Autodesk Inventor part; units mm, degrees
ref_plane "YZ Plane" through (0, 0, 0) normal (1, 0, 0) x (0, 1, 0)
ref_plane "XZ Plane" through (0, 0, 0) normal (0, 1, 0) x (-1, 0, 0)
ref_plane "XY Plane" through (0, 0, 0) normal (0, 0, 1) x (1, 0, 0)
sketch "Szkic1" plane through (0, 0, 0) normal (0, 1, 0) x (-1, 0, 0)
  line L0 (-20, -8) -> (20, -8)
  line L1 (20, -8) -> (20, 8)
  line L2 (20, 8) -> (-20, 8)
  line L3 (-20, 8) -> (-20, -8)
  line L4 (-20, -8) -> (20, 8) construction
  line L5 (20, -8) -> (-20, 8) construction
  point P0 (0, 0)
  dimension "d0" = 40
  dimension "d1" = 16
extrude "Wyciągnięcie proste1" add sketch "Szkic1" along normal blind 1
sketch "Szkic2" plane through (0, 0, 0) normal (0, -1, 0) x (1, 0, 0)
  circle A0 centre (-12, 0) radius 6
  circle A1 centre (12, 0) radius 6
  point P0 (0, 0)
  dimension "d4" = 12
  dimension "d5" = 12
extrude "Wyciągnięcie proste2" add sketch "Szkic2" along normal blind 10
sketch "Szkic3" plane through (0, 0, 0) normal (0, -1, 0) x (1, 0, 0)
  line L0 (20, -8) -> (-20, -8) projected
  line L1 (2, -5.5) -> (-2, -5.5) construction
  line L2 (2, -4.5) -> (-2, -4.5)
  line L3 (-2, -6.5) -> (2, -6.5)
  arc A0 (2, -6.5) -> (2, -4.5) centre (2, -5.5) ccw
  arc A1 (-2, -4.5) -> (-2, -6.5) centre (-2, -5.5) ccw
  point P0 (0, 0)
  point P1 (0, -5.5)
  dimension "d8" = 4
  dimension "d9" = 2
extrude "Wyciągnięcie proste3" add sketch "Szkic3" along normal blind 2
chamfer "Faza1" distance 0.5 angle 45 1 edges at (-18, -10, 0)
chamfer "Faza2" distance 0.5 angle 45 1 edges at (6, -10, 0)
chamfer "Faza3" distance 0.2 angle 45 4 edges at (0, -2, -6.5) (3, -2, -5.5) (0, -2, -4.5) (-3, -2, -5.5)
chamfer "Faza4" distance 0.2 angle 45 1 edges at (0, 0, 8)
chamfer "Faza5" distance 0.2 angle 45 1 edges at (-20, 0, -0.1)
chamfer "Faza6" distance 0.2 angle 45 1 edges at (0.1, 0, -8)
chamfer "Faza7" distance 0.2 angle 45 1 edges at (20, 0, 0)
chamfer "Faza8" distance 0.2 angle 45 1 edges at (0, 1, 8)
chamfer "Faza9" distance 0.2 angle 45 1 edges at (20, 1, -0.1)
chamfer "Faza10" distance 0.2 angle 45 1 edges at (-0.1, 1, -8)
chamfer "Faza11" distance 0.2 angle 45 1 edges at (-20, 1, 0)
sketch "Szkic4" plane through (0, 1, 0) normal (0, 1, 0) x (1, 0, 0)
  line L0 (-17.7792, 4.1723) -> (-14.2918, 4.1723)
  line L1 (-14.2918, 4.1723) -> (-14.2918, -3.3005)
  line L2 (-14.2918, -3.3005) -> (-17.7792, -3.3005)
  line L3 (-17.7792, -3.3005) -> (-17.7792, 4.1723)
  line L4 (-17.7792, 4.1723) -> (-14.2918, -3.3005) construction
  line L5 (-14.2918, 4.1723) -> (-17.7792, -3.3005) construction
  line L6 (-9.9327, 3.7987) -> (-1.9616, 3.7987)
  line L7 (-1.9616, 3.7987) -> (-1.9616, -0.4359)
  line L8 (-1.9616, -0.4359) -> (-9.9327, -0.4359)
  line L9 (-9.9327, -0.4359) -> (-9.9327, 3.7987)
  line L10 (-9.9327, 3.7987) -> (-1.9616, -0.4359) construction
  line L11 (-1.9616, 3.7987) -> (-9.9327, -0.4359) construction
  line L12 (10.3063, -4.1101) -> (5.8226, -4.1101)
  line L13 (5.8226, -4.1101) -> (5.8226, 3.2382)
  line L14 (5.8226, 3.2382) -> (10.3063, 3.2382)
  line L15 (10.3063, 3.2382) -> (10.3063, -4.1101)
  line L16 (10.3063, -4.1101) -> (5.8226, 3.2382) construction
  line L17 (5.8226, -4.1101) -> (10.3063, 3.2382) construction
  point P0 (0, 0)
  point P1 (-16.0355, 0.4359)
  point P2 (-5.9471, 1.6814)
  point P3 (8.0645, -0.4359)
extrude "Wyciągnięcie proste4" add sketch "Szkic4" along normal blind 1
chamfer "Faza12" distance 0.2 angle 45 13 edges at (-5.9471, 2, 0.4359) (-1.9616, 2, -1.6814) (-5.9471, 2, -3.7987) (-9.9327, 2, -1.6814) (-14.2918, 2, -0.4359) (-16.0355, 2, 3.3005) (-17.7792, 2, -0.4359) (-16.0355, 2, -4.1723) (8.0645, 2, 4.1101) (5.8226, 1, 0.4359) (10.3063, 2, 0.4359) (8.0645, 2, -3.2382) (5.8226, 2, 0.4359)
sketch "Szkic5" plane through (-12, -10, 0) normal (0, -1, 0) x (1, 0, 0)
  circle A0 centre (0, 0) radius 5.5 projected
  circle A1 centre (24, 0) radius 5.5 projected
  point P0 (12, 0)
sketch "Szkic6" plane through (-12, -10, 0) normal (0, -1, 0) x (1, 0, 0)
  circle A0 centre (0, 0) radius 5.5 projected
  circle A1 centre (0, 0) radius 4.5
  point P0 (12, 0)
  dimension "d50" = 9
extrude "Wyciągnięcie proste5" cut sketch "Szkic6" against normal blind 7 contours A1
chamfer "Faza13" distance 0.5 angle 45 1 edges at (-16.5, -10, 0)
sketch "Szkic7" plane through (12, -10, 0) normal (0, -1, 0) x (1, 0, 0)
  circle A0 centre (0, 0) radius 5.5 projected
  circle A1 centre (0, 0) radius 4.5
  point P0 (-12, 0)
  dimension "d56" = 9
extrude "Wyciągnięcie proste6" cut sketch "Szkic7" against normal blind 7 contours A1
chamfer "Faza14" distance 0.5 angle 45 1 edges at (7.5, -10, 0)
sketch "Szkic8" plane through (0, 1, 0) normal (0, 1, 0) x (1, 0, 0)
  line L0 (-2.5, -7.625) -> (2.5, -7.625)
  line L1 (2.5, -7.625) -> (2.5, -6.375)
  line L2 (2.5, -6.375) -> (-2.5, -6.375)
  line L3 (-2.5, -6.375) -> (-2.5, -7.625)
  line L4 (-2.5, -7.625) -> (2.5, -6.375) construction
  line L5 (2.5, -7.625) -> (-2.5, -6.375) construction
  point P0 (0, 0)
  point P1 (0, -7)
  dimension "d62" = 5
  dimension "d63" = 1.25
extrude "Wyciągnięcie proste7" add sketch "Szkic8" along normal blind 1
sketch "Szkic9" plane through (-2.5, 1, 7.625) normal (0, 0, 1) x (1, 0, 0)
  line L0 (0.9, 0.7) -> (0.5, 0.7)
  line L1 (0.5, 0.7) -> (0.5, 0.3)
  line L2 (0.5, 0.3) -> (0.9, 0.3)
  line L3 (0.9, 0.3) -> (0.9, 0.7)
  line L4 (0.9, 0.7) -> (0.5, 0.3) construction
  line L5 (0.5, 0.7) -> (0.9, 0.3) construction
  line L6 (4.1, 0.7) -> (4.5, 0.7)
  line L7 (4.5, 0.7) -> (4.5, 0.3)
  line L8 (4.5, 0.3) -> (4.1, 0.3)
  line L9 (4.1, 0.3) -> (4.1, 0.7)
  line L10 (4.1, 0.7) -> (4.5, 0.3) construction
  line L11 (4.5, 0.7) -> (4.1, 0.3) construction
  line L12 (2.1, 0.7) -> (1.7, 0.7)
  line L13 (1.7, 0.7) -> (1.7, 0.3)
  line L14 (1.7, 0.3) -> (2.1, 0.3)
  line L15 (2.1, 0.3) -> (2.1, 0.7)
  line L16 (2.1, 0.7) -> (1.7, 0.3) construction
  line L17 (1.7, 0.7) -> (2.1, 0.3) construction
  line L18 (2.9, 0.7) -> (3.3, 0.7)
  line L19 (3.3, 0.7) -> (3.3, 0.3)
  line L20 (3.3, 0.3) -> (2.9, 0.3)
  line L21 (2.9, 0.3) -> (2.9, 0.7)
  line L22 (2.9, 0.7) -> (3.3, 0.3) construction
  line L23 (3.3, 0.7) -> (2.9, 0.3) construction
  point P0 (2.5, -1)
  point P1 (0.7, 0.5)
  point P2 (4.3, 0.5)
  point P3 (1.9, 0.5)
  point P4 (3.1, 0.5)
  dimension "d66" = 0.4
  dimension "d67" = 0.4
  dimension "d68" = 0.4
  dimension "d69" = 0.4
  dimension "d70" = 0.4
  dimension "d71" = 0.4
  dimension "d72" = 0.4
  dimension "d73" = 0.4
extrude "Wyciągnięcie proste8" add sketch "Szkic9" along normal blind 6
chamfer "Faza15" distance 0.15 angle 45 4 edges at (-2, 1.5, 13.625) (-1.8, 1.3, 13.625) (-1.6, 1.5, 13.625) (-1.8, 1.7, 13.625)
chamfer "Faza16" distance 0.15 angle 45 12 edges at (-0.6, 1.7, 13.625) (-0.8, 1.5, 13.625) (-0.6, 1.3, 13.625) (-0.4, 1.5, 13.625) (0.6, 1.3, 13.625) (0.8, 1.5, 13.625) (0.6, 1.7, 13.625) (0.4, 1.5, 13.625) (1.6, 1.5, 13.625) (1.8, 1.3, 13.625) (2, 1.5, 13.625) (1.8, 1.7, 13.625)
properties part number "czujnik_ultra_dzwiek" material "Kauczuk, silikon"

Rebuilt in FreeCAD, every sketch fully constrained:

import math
import FreeCAD as App
import Part
import Sketcher
Q = App.Units.Quantity


def edges_at(feature, points):
    """Names of the edges that pass closest to the given points."""
    edges = feature.Shape.Edges
    near = lambda p: min(range(len(edges)), key=lambda i: edges[i].distToShape(Part.Vertex(*p))[0])
    return sorted({f"Edge{near(p) + 1}" for p in points})


def add_polygon(sketch, points):
    """Adds a closed chain of lines whose ends are joined by coincident constraints."""
    first, n = sketch.GeometryCount, len(points)
    for a, b in zip(points, points[1:] + points[:1]):
        sketch.addGeometry(Part.LineSegment(App.Vector(*a, 0), App.Vector(*b, 0)), False)
    for i in range(n):
        sketch.addConstraint(Sketcher.Constraint("Coincident", first + i, 2, first + (i + 1) % n, 1))

doc = App.newDocument("Part")
body = doc.addObject("PartDesign::Body", "Body")

# Sketch on XZ plane
sketch1 = body.newObject("Sketcher::SketchObject", "Sketch")
sketch1.AttachmentSupport = (doc.getObject("XZ_Plane"), [""])
sketch1.MapMode = "FlatFace"
add_polygon(sketch1, [(20, 8), (20, -8), (-20, -8), (-20, 8)])  # lines 0-3
sketch1.addConstraint(Sketcher.Constraint("Vertical", 0))
sketch1.addConstraint(Sketcher.Constraint("Horizontal", 1))
sketch1.addConstraint(Sketcher.Constraint("Vertical", 2))
sketch1.addConstraint(Sketcher.Constraint("Horizontal", 3))
sketch1.addConstraint(Sketcher.Constraint("Symmetric", 0, 2, 2, 2, -1, 1))
sketch1.addConstraint(Sketcher.Constraint("DistanceX", 1, 2, 1, 1, Q("40 mm")))
sketch1.addConstraint(Sketcher.Constraint("DistanceY", 0, 2, 0, 1, Q("16 mm")))
pad1 = body.newObject("PartDesign::Pad", "Pad")
pad1.Profile = sketch1
pad1.Length = 1
pad1.Reversed = True

# Sketch on XZ plane
sketch2 = body.newObject("Sketcher::SketchObject", "Sketch001")
sketch2.AttachmentSupport = (doc.getObject("XZ_Plane"), [""])
sketch2.MapMode = "FlatFace"
sketch2.addGeometry(Part.Circle(App.Vector(-12, 0, 0), App.Vector(0, 0, 1), 6), False)
sketch2.addGeometry(Part.Circle(App.Vector(12, 0, 0), App.Vector(0, 0, 1), 6), False)
sketch2.addConstraint(Sketcher.Constraint("Equal", 0, 1))
sketch2.addConstraint(Sketcher.Constraint("Symmetric", 0, 3, 1, 3, -1, 1))
sketch2.addConstraint(Sketcher.Constraint("PointOnObject", 0, 3, -1))
sketch2.addConstraint(Sketcher.Constraint("Diameter", 0, Q("12 mm")))
sketch2.addConstraint(Sketcher.Constraint("DistanceX", 0, 3, -1, 1, Q("12 mm")))
pad2 = body.newObject("PartDesign::Pad", "Pad001")
pad2.Profile = sketch2
pad2.Length = 10

# Sketch on XZ plane
sketch3 = body.newObject("Sketcher::SketchObject", "Sketch002")
sketch3.AttachmentSupport = (doc.getObject("XZ_Plane"), [""])
sketch3.MapMode = "FlatFace"
sketch3.addGeometry(Part.ArcOfCircle(Part.Circle(App.Vector(2, -5.5, 0), App.Vector(0, 0, 1), 1), math.radians(-90), math.radians(90)), False)
sketch3.addGeometry(Part.LineSegment(App.Vector(2, -4.5, 0), App.Vector(-2, -4.5, 0)), False)
sketch3.addGeometry(Part.ArcOfCircle(Part.Circle(App.Vector(-2, -5.5, 0), App.Vector(0, 0, 1), 1), math.radians(90), math.radians(270)), False)
sketch3.addGeometry(Part.LineSegment(App.Vector(-2, -6.5, 0), App.Vector(2, -6.5, 0)), False)
sketch3.addConstraint(Sketcher.Constraint("Tangent", 0, 2, 1, 1))
sketch3.addConstraint(Sketcher.Constraint("Tangent", 1, 2, 2, 1))
sketch3.addConstraint(Sketcher.Constraint("Tangent", 2, 2, 3, 1))
sketch3.addConstraint(Sketcher.Constraint("Tangent", 3, 2, 0, 1))
sketch3.addConstraint(Sketcher.Constraint("Horizontal", 1))
sketch3.addConstraint(Sketcher.Constraint("Horizontal", 3))
sketch3.addConstraint(Sketcher.Constraint("Radius", 0, Q("1 mm")))
sketch3.addConstraint(Sketcher.Constraint("DistanceX", 1, 2, 1, 1, Q("4 mm")))
sketch3.addConstraint(Sketcher.Constraint("DistanceX", -1, 1, 0, 3, Q("2 mm")))
sketch3.addConstraint(Sketcher.Constraint("DistanceY", 0, 3, -1, 1, Q("5.5 mm")))
pad3 = body.newObject("PartDesign::Pad", "Pad002")
pad3.Profile = sketch3
pad3.Length = 2
doc.recompute()

chamfer = body.newObject("PartDesign::Chamfer", "Chamfer")
chamfer.Base = (pad3, edges_at(pad3, [(-18, -10, 0)]))
chamfer.Size = 0.5
doc.recompute()

chamfer2 = body.newObject("PartDesign::Chamfer", "Chamfer001")
chamfer2.Base = (chamfer, edges_at(chamfer, [(6, -10, 0)]))
chamfer2.Size = 0.5
doc.recompute()

chamfer3 = body.newObject("PartDesign::Chamfer", "Chamfer002")
chamfer3.Base = (chamfer2, edges_at(chamfer2, [
    (0, -2, -6.5),
    (3, -2, -5.5),
    (0, -2, -4.5),
    (-3, -2, -5.5),
]))
chamfer3.Size = 0.2
doc.recompute()

chamfer4 = body.newObject("PartDesign::Chamfer", "Chamfer003")
chamfer4.Base = (chamfer3, edges_at(chamfer3, [(0, 0, 8)]))
chamfer4.Size = 0.2
doc.recompute()

chamfer5 = body.newObject("PartDesign::Chamfer", "Chamfer004")
chamfer5.Base = (chamfer4, edges_at(chamfer4, [(-20, 0, -0.1)]))
chamfer5.Size = 0.2
doc.recompute()

chamfer6 = body.newObject("PartDesign::Chamfer", "Chamfer005")
chamfer6.Base = (chamfer5, edges_at(chamfer5, [(0.1, 0, -8)]))
chamfer6.Size = 0.2
doc.recompute()

chamfer7 = body.newObject("PartDesign::Chamfer", "Chamfer006")
chamfer7.Base = (chamfer6, edges_at(chamfer6, [(20, 0, 0)]))
chamfer7.Size = 0.2
doc.recompute()

chamfer8 = body.newObject("PartDesign::Chamfer", "Chamfer007")
chamfer8.Base = (chamfer7, edges_at(chamfer7, [(0, 1, 8)]))
chamfer8.Size = 0.2
doc.recompute()

chamfer9 = body.newObject("PartDesign::Chamfer", "Chamfer008")
chamfer9.Base = (chamfer8, edges_at(chamfer8, [(20, 1, -0.1)]))
chamfer9.Size = 0.2
doc.recompute()

chamfer10 = body.newObject("PartDesign::Chamfer", "Chamfer009")
chamfer10.Base = (chamfer9, edges_at(chamfer9, [(-0.1, 1, -8)]))
chamfer10.Size = 0.2
doc.recompute()

chamfer11 = body.newObject("PartDesign::Chamfer", "Chamfer010")
chamfer11.Base = (chamfer10, edges_at(chamfer10, [(-20, 1, 0)]))
chamfer11.Size = 0.2

# Sketch on XZ plane
sketch4 = body.newObject("Sketcher::SketchObject", "Sketch003")
sketch4.AttachmentSupport = (doc.getObject("XZ_Plane"), [""])
sketch4.MapMode = "FlatFace"
sketch4.AttachmentOffset = App.Placement(App.Vector(0, 0, -1), App.Rotation())
add_polygon(sketch4, [(-14.2918, -4.1723), (-17.7792, -4.1723), (-17.7792, 3.3005), (-14.2918, 3.3005)])  # lines 0-3
add_polygon(sketch4, [(-1.9616, -3.7987), (-9.9327, -3.7987), (-9.9327, 0.4359), (-1.9616, 0.4359)])  # lines 4-7
add_polygon(sketch4, [(5.8226, 4.1101), (10.3063, 4.1101), (10.3063, -3.2382), (5.8226, -3.2382)])  # lines 8-11
sketch4.addConstraint(Sketcher.Constraint("Horizontal", 0))
sketch4.addConstraint(Sketcher.Constraint("Vertical", 1))
sketch4.addConstraint(Sketcher.Constraint("Horizontal", 2))
sketch4.addConstraint(Sketcher.Constraint("Vertical", 3))
sketch4.addConstraint(Sketcher.Constraint("Horizontal", 4))
sketch4.addConstraint(Sketcher.Constraint("Vertical", 5))
sketch4.addConstraint(Sketcher.Constraint("Horizontal", 6))
sketch4.addConstraint(Sketcher.Constraint("Vertical", 7))
sketch4.addConstraint(Sketcher.Constraint("Horizontal", 8))
sketch4.addConstraint(Sketcher.Constraint("Vertical", 9))
sketch4.addConstraint(Sketcher.Constraint("Horizontal", 10))
sketch4.addConstraint(Sketcher.Constraint("Vertical", 11))
sketch4.addConstraint(Sketcher.Constraint("DistanceX", 4, 2, 4, 1, Q("7.971 mm")))
sketch4.addConstraint(Sketcher.Constraint("DistanceY", -1, 1, 8, 2, Q("4.11 mm")))
sketch4.addConstraint(Sketcher.Constraint("DistanceX", 0, 2, 0, 1, Q("3.4874 mm")))
sketch4.addConstraint(Sketcher.Constraint("DistanceX", 8, 1, 8, 2, Q("4.4837 mm")))
sketch4.addConstraint(Sketcher.Constraint("DistanceY", 1, 1, 1, 2, Q("7.4728 mm")))
sketch4.addConstraint(Sketcher.Constraint("DistanceY", 5, 1, 5, 2, Q("4.2346 mm")))
sketch4.addConstraint(Sketcher.Constraint("DistanceY", 9, 2, 9, 1, Q("7.3483 mm")))
sketch4.addConstraint(Sketcher.Constraint("DistanceY", -1, 1, 5, 2, Q("0.436 mm")))
sketch4.addConstraint(Sketcher.Constraint("DistanceX", 3, 2, 4, 2, Q("4.359 mm")))
sketch4.addConstraint(Sketcher.Constraint("DistanceX", 6, 2, 8, 2, Q("12.268 mm")))
sketch4.addConstraint(Sketcher.Constraint("DistanceX", 0, 2, -1, 1, Q("17.7792 mm")))
sketch4.addConstraint(Sketcher.Constraint("DistanceY", 0, 2, -1, 1, Q("4.1723 mm")))
pad4 = body.newObject("PartDesign::Pad", "Pad003")
pad4.Profile = sketch4
pad4.Length = 1
pad4.Reversed = True
doc.recompute()

chamfer12 = body.newObject("PartDesign::Chamfer", "Chamfer011")
chamfer12.Base = (pad4, edges_at(pad4, [
    (-5.947, 2, 0.436),
    (-1.962, 2, -1.681),
    (-5.947, 2, -3.799),
    (-9.933, 2, -1.681),
    (-14.292, 2, -0.436),
    (-16.035, 2, 3.3),
    (-17.779, 2, -0.436),
    (-16.035, 2, -4.172),
    (8.065, 2, 4.11),
    (5.823, 1, 0.436),
    (10.306, 2, 0.436),
    (8.065, 2, -3.238),
    (5.823, 2, 0.436),
]))
chamfer12.Size = 0.2

# Sketch on XZ plane
sketch5 = body.newObject("Sketcher::SketchObject", "Sketch004")
sketch5.AttachmentSupport = (doc.getObject("XZ_Plane"), [""])
sketch5.MapMode = "FlatFace"
sketch5.AttachmentOffset = App.Placement(App.Vector(0, 0, 10), App.Rotation())
sketch5.addGeometry(Part.Circle(App.Vector(-12, 0, 0), App.Vector(0, 0, 1), 4.5), False)
sketch5.addConstraint(Sketcher.Constraint("PointOnObject", 0, 3, -1))
sketch5.addConstraint(Sketcher.Constraint("Diameter", 0, Q("9 mm")))
sketch5.addConstraint(Sketcher.Constraint("DistanceX", 0, 3, -1, 1, Q("12 mm")))
pocket1 = body.newObject("PartDesign::Pocket", "Pocket")
pocket1.Profile = sketch5
pocket1.Length = 7
doc.recompute()

chamfer13 = body.newObject("PartDesign::Chamfer", "Chamfer012")
chamfer13.Base = (pocket1, edges_at(pocket1, [(-16.5, -10, 0)]))
chamfer13.Size = 0.5

# Sketch on XZ plane
sketch6 = body.newObject("Sketcher::SketchObject", "Sketch005")
sketch6.AttachmentSupport = (doc.getObject("XZ_Plane"), [""])
sketch6.MapMode = "FlatFace"
sketch6.AttachmentOffset = App.Placement(App.Vector(0, 0, 10), App.Rotation())
sketch6.addGeometry(Part.Circle(App.Vector(12, 0, 0), App.Vector(0, 0, 1), 4.5), False)
sketch6.addConstraint(Sketcher.Constraint("PointOnObject", 0, 3, -1))
sketch6.addConstraint(Sketcher.Constraint("Diameter", 0, Q("9 mm")))
sketch6.addConstraint(Sketcher.Constraint("DistanceX", -1, 1, 0, 3, Q("12 mm")))
pocket2 = body.newObject("PartDesign::Pocket", "Pocket001")
pocket2.Profile = sketch6
pocket2.Length = 7
doc.recompute()

chamfer14 = body.newObject("PartDesign::Chamfer", "Chamfer013")
chamfer14.Base = (pocket2, edges_at(pocket2, [(7.5, -10, 0)]))
chamfer14.Size = 0.5

# Sketch on XZ plane
sketch7 = body.newObject("Sketcher::SketchObject", "Sketch006")
sketch7.AttachmentSupport = (doc.getObject("XZ_Plane"), [""])
sketch7.MapMode = "FlatFace"
sketch7.AttachmentOffset = App.Placement(App.Vector(0, 0, -1), App.Rotation())
add_polygon(sketch7, [(-2.5, 6.375), (-2.5, 7.625), (2.5, 7.625), (2.5, 6.375)])  # lines 0-3
sketch7.addConstraint(Sketcher.Constraint("Vertical", 0))
sketch7.addConstraint(Sketcher.Constraint("Horizontal", 1))
sketch7.addConstraint(Sketcher.Constraint("Vertical", 2))
sketch7.addConstraint(Sketcher.Constraint("Horizontal", 3))
sketch7.addConstraint(Sketcher.Constraint("DistanceX", 1, 1, 1, 2, Q("5 mm")))
sketch7.addConstraint(Sketcher.Constraint("DistanceY", 0, 1, 0, 2, Q("1.25 mm")))
sketch7.addConstraint(Sketcher.Constraint("DistanceX", 0, 2, -1, 1, Q("2.5 mm")))
sketch7.addConstraint(Sketcher.Constraint("DistanceY", -1, 1, 0, 2, Q("7.625 mm")))
pad5 = body.newObject("PartDesign::Pad", "Pad004")
pad5.Profile = sketch7
pad5.Length = 1
pad5.Reversed = True

# Sketch on XY plane
sketch8 = body.newObject("Sketcher::SketchObject", "Sketch007")
sketch8.AttachmentSupport = (doc.getObject("XY_Plane"), [""])
sketch8.MapMode = "FlatFace"
sketch8.AttachmentOffset = App.Placement(App.Vector(0, 0, 7.625), App.Rotation())
add_polygon(sketch8, [(-1.6, 1.3), (-1.6, 1.7), (-2, 1.7), (-2, 1.3)])  # lines 0-3
add_polygon(sketch8, [(2, 1.7), (1.6, 1.7), (1.6, 1.3), (2, 1.3)])  # lines 4-7
add_polygon(sketch8, [(-0.4, 1.3), (-0.4, 1.7), (-0.8, 1.7), (-0.8, 1.3)])  # lines 8-11
add_polygon(sketch8, [(0.8, 1.7), (0.4, 1.7), (0.4, 1.3), (0.8, 1.3)])  # lines 12-15
sketch8.addConstraint(Sketcher.Constraint("Vertical", 0))
sketch8.addConstraint(Sketcher.Constraint("Horizontal", 1))
sketch8.addConstraint(Sketcher.Constraint("Vertical", 2))
sketch8.addConstraint(Sketcher.Constraint("Horizontal", 3))
sketch8.addConstraint(Sketcher.Constraint("Horizontal", 4))
sketch8.addConstraint(Sketcher.Constraint("Vertical", 5))
sketch8.addConstraint(Sketcher.Constraint("Horizontal", 6))
sketch8.addConstraint(Sketcher.Constraint("Vertical", 7))
sketch8.addConstraint(Sketcher.Constraint("Vertical", 8))
sketch8.addConstraint(Sketcher.Constraint("Horizontal", 9))
sketch8.addConstraint(Sketcher.Constraint("Vertical", 10))
sketch8.addConstraint(Sketcher.Constraint("Horizontal", 11))
sketch8.addConstraint(Sketcher.Constraint("Horizontal", 12))
sketch8.addConstraint(Sketcher.Constraint("Vertical", 13))
sketch8.addConstraint(Sketcher.Constraint("Horizontal", 14))
sketch8.addConstraint(Sketcher.Constraint("Vertical", 15))
sketch8.addConstraint(Sketcher.Constraint("Symmetric", 0, 2, 4, 2, -2))
sketch8.addConstraint(Sketcher.Constraint("Symmetric", 2, 2, 6, 2, -2))
sketch8.addConstraint(Sketcher.Constraint("Symmetric", 8, 2, 12, 2, -2))
sketch8.addConstraint(Sketcher.Constraint("Symmetric", 10, 2, 14, 2, -2))
sketch8.addConstraint(Sketcher.Constraint("Horizontal", 7, 2, 8, 2))
sketch8.addConstraint(Sketcher.Constraint("Horizontal", 6, 2, 10, 2))
sketch8.addConstraint(Sketcher.Constraint("Equal", 6, 9))
sketch8.addConstraint(Sketcher.Constraint("Equal", 14, 0))
sketch8.addConstraint(Sketcher.Constraint("DistanceX", 1, 2, 1, 1, Q("0.4 mm")))
sketch8.addConstraint(Sketcher.Constraint("DistanceX", 8, 2, -1, 1, Q("0.4 mm")))
sketch8.addConstraint(Sketcher.Constraint("DistanceX", 1, 2, -1, 1, Q("2 mm")))
sketch8.addConstraint(Sketcher.Constraint("DistanceY", -1, 1, 0, 2, Q("1.7 mm")))
pad6 = body.newObject("PartDesign::Pad", "Pad005")
pad6.Profile = sketch8
pad6.Length = 6
doc.recompute()

chamfer15 = body.newObject("PartDesign::Chamfer", "Chamfer014")
chamfer15.Base = (pad6, edges_at(pad6, [
    (-2, 1.5, 13.625),
    (-1.8, 1.3, 13.625),
    (-1.6, 1.5, 13.625),
    (-1.8, 1.7, 13.625),
]))
chamfer15.Size = 0.15
doc.recompute()

chamfer16 = body.newObject("PartDesign::Chamfer", "Chamfer015")
chamfer16.Base = (chamfer15, edges_at(chamfer15, [
    (-0.6, 1.7, 13.625),
    (-0.8, 1.5, 13.625),
    (-0.6, 1.3, 13.625),
    (-0.4, 1.5, 13.625),
    (0.6, 1.3, 13.625),
    (0.8, 1.5, 13.625),
    (0.6, 1.7, 13.625),
    (0.4, 1.5, 13.625),
    (1.6, 1.5, 13.625),
    (1.8, 1.3, 13.625),
    (2, 1.5, 13.625),
    (1.8, 1.7, 13.625),
]))
chamfer16.Size = 0.15

doc.recompute()
